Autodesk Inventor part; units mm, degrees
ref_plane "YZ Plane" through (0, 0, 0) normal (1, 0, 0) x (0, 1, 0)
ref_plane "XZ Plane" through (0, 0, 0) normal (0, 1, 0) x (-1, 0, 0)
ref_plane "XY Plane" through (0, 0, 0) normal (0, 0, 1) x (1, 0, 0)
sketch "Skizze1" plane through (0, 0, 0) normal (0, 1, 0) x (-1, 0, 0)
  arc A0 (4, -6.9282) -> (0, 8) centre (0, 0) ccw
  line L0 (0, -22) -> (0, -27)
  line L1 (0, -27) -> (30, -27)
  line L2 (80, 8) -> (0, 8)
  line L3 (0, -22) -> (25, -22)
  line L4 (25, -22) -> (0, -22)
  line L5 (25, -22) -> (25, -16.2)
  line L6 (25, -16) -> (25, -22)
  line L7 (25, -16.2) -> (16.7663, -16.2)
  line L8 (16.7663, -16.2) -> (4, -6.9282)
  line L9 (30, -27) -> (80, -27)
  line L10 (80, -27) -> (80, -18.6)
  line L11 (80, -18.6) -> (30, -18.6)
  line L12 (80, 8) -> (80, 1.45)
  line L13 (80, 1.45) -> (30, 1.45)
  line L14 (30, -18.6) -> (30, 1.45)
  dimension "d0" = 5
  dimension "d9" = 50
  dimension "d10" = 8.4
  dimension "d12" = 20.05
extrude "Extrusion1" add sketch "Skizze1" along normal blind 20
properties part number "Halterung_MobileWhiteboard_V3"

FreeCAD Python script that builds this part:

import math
import FreeCAD as App
import Part
import Sketcher
Q = App.Units.Quantity

doc = App.newDocument("Part")
body = doc.addObject("PartDesign::Body", "Body")

sketch1 = body.newObject("Sketcher::SketchObject", "Sketch")
sketch1.AttachmentSupport = (doc.getObject("XZ_Plane"), [""])
sketch1.MapMode = "FlatFace"
sketch1.addGeometry([
    Part.ArcOfCircle(Part.Circle(App.Vector(0, 0, 0), App.Vector(0, 0, 1), 8), math.radians(90), math.radians(240)),
    Part.LineSegment(App.Vector(-4, -7, 0), App.Vector(-17, -16, 0)),
    Part.LineSegment(App.Vector(-17, -16, 0), App.Vector(-25, -16, 0)),
    Part.LineSegment(App.Vector(-25, -16, 0), App.Vector(-25, -22, 0)),
    Part.LineSegment(App.Vector(-25, -22, 0), App.Vector(0, -22, 0)),
    Part.LineSegment(App.Vector(0, -22, 0), App.Vector(0, -27, 0)),
    Part.LineSegment(App.Vector(0, -27, 0), App.Vector(-80, -27, 0)),
    Part.LineSegment(App.Vector(-80, -27, 0), App.Vector(-80, -19, 0)),
    Part.LineSegment(App.Vector(-80, -19, 0), App.Vector(-30, -19, 0)),
    Part.LineSegment(App.Vector(-30, -19, 0), App.Vector(-30, 1, 0)),
    Part.LineSegment(App.Vector(-30, 1, 0), App.Vector(-80, 1, 0)),
    Part.LineSegment(App.Vector(-80, 1, 0), App.Vector(-80, 8, 0)),
    Part.LineSegment(App.Vector(-80, 8, 0), App.Vector(0, 8, 0)),
], False)
sketch1.addConstraint([
    Sketcher.Constraint("Coincident", 0, 2, 1, 1),
    Sketcher.Constraint("Coincident", 1, 2, 2, 1),
    Sketcher.Constraint("Coincident", 2, 2, 3, 1),
    Sketcher.Constraint("Coincident", 3, 2, 4, 1),
    Sketcher.Constraint("Coincident", 4, 2, 5, 1),
    Sketcher.Constraint("Coincident", 5, 2, 6, 1),
    Sketcher.Constraint("Coincident", 6, 2, 7, 1),
    Sketcher.Constraint("Coincident", 7, 2, 8, 1),
    Sketcher.Constraint("Coincident", 8, 2, 9, 1),
    Sketcher.Constraint("Coincident", 9, 2, 10, 1),
    Sketcher.Constraint("Coincident", 10, 2, 11, 1),
    Sketcher.Constraint("Coincident", 11, 2, 12, 1),
    Sketcher.Constraint("Tangent", 12, 2, 0, 1),
    Sketcher.Constraint("Horizontal", 2),
    Sketcher.Constraint("Vertical", 3),
    Sketcher.Constraint("Horizontal", 4),
    Sketcher.Constraint("Vertical", 5),
    Sketcher.Constraint("Horizontal", 6),
    Sketcher.Constraint("Vertical", 7),
    Sketcher.Constraint("Horizontal", 8),
    Sketcher.Constraint("Vertical", 9),
    Sketcher.Constraint("Horizontal", 10),
    Sketcher.Constraint("Vertical", 11),
    Sketcher.Constraint("Horizontal", 12),
    Sketcher.Constraint("Coincident", 0, 3, -1, 1),
    Sketcher.Constraint("PointOnObject", 4, 2, -2),
    Sketcher.Constraint("Vertical", 7, 2, 10, 2),
    Sketcher.Constraint("DistanceX", 8, 1, 8, 2, Q("50 mm")),
    Sketcher.Constraint("DistanceY", 5, 2, 5, 1, Q("5 mm")),
    Sketcher.Constraint("DistanceY", 7, 1, 7, 2, Q("8.4 mm")),
    Sketcher.Constraint("Radius", 0, Q("8 mm")),
    Sketcher.Constraint("DistanceX", 8, 2, 2, 2, Q("5 mm")),
    Sketcher.Constraint("DistanceY", 9, 1, 9, 2, Q("20.05 mm")),
    Sketcher.Constraint("DistanceX", 4, 1, 4, 2, Q("25 mm")),
    Sketcher.Constraint("DistanceY", 3, 2, 3, 1, Q("5.8 mm")),
    Sketcher.Constraint("DistanceX", 0, 2, -1, 1, Q("4 mm")),
    Sketcher.Constraint("DistanceY", 3, 2, -1, 1, Q("22 mm")),
    Sketcher.Constraint("Angle", 1, Q("-144.0102 deg")),
])
pad1 = body.newObject("PartDesign::Pad", "Pad")
pad1.Profile = sketch1
pad1.Length = 20
pad1.Reversed = True

doc.recompute()
